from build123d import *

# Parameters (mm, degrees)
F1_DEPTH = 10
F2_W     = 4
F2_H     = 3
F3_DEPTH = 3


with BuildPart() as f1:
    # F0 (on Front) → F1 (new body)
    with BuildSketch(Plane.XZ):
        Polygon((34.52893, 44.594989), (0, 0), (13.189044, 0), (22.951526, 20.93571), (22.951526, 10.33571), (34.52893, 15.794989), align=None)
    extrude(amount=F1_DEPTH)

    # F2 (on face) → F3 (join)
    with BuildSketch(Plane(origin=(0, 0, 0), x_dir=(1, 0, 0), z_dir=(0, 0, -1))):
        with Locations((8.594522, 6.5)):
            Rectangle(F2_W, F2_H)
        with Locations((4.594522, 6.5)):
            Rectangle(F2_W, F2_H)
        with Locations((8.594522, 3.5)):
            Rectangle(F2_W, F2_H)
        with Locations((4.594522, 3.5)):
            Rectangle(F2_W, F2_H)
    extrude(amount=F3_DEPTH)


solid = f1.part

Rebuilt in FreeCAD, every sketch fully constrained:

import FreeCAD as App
import Part
import Sketcher
Q = App.Units.Quantity

doc = App.newDocument("Part")
params = doc.addObject("Spreadsheet::Sheet", "Params")
for row, (alias, value) in enumerate([
    ("sketch1_height", "10.6 mm"),
    ("sketch1_height2", "28.8 mm"),
    ("sketch1_length", "56.4 mm"),
    ("sketch1_length2", "23.1 mm"),
    ("sketch1_length3", "12.8 mm"),
    ("pad1_length", "10 mm"),
    ("sketch2_width", "8 mm"),
    ("sketch2_height", "6 mm"),
    ("pad2_length", "3 mm"),
], start=1):
    params.set(f"A{row}", alias)
    params.set(f"B{row}", "=" + value)
    params.setAlias(f"B{row}", alias)

body = doc.addObject("PartDesign::Body", "Body")

sketch1 = body.newObject("Sketcher::SketchObject", "Sketch")
sketch1.AttachmentSupport = (doc.getObject("XZ_Plane"), [""])
sketch1.MapMode = "FlatFace"
sketch1.addGeometry([
    Part.LineSegment(App.Vector(35, 45, 0), App.Vector(0, 0, 0)),
    Part.LineSegment(App.Vector(0, 0, 0), App.Vector(13, 0, 0)),
    Part.LineSegment(App.Vector(13, 0, 0), App.Vector(23, 21, 0)),
    Part.LineSegment(App.Vector(23, 21, 0), App.Vector(23, 10, 0)),
    Part.LineSegment(App.Vector(23, 10, 0), App.Vector(35, 16, 0)),
    Part.LineSegment(App.Vector(35, 16, 0), App.Vector(35, 45, 0)),
], False)
sketch1.addConstraint([
    Sketcher.Constraint("Coincident", 0, 2, 1, 1),
    Sketcher.Constraint("Coincident", 1, 2, 2, 1),
    Sketcher.Constraint("Coincident", 2, 2, 3, 1),
    Sketcher.Constraint("Coincident", 3, 2, 4, 1),
    Sketcher.Constraint("Coincident", 4, 2, 5, 1),
    Sketcher.Constraint("Coincident", 5, 2, 0, 1),
    Sketcher.Constraint("Horizontal", 1),
    Sketcher.Constraint("Vertical", 3),
    Sketcher.Constraint("Vertical", 5),
    Sketcher.Constraint("Coincident", 0, 2, -1, 1),
    Sketcher.Constraint("Angle", 2, Q("65 deg")),
    Sketcher.Constraint("DistanceY", 3, 2, 3, 1, 10.6),
    Sketcher.Constraint("DistanceY", 5, 1, 5, 2, 28.8),
    Sketcher.Constraint("Distance", 0, 56.4),
    Sketcher.Constraint("Distance", 2, 23.1),
    Sketcher.Constraint("Distance", 4, 12.8),
    Sketcher.Constraint("DistanceX", 1, 1, 1, 2, 13.189044),
])
sketch1.setExpression("Constraints[11]", "Params.sketch1_height")
sketch1.setExpression("Constraints[12]", "Params.sketch1_height2")
sketch1.setExpression("Constraints[13]", "Params.sketch1_length")
sketch1.setExpression("Constraints[14]", "Params.sketch1_length2")
sketch1.setExpression("Constraints[15]", "Params.sketch1_length3")
pad1 = body.newObject("PartDesign::Pad", "Pad")
pad1.Profile = sketch1
pad1.setExpression("Length", "Params.pad1_length")

sketch2 = body.newObject("Sketcher::SketchObject", "Sketch001")
sketch2.AttachmentSupport = (doc.getObject("XY_Plane"), [""])
sketch2.MapMode = "FlatFace"
sketch2.addGeometry([
    Part.LineSegment(App.Vector(11, -8, 0), App.Vector(3, -8, 0)),
    Part.LineSegment(App.Vector(3, -8, 0), App.Vector(3, -2, 0)),
    Part.LineSegment(App.Vector(3, -2, 0), App.Vector(11, -2, 0)),
    Part.LineSegment(App.Vector(11, -2, 0), App.Vector(11, -8, 0)),
], False)
sketch2.addConstraint([
    Sketcher.Constraint("Coincident", 0, 2, 1, 1),
    Sketcher.Constraint("Coincident", 1, 2, 2, 1),
    Sketcher.Constraint("Coincident", 2, 2, 3, 1),
    Sketcher.Constraint("Coincident", 3, 2, 0, 1),
    Sketcher.Constraint("Horizontal", 0),
    Sketcher.Constraint("Vertical", 1),
    Sketcher.Constraint("Horizontal", 2),
    Sketcher.Constraint("Vertical", 3),
    Sketcher.Constraint("DistanceX", 0, 2, 0, 1, 8.0),
    Sketcher.Constraint("DistanceY", 1, 1, 1, 2, 6.0),
    Sketcher.Constraint("DistanceY", 0, 2, -1, 1, 8.0),
    Sketcher.Constraint("DistanceX", -1, 1, 0, 2, 2.594522),
])
sketch2.setExpression("Constraints[8]", "Params.sketch2_width")
sketch2.setExpression("Constraints[9]", "Params.sketch2_height")
pad2 = body.newObject("PartDesign::Pad", "Pad001")
pad2.Profile = sketch2
pad2.setExpression("Length", "Params.pad2_length")
pad2.Reversed = True

doc.recompute()
